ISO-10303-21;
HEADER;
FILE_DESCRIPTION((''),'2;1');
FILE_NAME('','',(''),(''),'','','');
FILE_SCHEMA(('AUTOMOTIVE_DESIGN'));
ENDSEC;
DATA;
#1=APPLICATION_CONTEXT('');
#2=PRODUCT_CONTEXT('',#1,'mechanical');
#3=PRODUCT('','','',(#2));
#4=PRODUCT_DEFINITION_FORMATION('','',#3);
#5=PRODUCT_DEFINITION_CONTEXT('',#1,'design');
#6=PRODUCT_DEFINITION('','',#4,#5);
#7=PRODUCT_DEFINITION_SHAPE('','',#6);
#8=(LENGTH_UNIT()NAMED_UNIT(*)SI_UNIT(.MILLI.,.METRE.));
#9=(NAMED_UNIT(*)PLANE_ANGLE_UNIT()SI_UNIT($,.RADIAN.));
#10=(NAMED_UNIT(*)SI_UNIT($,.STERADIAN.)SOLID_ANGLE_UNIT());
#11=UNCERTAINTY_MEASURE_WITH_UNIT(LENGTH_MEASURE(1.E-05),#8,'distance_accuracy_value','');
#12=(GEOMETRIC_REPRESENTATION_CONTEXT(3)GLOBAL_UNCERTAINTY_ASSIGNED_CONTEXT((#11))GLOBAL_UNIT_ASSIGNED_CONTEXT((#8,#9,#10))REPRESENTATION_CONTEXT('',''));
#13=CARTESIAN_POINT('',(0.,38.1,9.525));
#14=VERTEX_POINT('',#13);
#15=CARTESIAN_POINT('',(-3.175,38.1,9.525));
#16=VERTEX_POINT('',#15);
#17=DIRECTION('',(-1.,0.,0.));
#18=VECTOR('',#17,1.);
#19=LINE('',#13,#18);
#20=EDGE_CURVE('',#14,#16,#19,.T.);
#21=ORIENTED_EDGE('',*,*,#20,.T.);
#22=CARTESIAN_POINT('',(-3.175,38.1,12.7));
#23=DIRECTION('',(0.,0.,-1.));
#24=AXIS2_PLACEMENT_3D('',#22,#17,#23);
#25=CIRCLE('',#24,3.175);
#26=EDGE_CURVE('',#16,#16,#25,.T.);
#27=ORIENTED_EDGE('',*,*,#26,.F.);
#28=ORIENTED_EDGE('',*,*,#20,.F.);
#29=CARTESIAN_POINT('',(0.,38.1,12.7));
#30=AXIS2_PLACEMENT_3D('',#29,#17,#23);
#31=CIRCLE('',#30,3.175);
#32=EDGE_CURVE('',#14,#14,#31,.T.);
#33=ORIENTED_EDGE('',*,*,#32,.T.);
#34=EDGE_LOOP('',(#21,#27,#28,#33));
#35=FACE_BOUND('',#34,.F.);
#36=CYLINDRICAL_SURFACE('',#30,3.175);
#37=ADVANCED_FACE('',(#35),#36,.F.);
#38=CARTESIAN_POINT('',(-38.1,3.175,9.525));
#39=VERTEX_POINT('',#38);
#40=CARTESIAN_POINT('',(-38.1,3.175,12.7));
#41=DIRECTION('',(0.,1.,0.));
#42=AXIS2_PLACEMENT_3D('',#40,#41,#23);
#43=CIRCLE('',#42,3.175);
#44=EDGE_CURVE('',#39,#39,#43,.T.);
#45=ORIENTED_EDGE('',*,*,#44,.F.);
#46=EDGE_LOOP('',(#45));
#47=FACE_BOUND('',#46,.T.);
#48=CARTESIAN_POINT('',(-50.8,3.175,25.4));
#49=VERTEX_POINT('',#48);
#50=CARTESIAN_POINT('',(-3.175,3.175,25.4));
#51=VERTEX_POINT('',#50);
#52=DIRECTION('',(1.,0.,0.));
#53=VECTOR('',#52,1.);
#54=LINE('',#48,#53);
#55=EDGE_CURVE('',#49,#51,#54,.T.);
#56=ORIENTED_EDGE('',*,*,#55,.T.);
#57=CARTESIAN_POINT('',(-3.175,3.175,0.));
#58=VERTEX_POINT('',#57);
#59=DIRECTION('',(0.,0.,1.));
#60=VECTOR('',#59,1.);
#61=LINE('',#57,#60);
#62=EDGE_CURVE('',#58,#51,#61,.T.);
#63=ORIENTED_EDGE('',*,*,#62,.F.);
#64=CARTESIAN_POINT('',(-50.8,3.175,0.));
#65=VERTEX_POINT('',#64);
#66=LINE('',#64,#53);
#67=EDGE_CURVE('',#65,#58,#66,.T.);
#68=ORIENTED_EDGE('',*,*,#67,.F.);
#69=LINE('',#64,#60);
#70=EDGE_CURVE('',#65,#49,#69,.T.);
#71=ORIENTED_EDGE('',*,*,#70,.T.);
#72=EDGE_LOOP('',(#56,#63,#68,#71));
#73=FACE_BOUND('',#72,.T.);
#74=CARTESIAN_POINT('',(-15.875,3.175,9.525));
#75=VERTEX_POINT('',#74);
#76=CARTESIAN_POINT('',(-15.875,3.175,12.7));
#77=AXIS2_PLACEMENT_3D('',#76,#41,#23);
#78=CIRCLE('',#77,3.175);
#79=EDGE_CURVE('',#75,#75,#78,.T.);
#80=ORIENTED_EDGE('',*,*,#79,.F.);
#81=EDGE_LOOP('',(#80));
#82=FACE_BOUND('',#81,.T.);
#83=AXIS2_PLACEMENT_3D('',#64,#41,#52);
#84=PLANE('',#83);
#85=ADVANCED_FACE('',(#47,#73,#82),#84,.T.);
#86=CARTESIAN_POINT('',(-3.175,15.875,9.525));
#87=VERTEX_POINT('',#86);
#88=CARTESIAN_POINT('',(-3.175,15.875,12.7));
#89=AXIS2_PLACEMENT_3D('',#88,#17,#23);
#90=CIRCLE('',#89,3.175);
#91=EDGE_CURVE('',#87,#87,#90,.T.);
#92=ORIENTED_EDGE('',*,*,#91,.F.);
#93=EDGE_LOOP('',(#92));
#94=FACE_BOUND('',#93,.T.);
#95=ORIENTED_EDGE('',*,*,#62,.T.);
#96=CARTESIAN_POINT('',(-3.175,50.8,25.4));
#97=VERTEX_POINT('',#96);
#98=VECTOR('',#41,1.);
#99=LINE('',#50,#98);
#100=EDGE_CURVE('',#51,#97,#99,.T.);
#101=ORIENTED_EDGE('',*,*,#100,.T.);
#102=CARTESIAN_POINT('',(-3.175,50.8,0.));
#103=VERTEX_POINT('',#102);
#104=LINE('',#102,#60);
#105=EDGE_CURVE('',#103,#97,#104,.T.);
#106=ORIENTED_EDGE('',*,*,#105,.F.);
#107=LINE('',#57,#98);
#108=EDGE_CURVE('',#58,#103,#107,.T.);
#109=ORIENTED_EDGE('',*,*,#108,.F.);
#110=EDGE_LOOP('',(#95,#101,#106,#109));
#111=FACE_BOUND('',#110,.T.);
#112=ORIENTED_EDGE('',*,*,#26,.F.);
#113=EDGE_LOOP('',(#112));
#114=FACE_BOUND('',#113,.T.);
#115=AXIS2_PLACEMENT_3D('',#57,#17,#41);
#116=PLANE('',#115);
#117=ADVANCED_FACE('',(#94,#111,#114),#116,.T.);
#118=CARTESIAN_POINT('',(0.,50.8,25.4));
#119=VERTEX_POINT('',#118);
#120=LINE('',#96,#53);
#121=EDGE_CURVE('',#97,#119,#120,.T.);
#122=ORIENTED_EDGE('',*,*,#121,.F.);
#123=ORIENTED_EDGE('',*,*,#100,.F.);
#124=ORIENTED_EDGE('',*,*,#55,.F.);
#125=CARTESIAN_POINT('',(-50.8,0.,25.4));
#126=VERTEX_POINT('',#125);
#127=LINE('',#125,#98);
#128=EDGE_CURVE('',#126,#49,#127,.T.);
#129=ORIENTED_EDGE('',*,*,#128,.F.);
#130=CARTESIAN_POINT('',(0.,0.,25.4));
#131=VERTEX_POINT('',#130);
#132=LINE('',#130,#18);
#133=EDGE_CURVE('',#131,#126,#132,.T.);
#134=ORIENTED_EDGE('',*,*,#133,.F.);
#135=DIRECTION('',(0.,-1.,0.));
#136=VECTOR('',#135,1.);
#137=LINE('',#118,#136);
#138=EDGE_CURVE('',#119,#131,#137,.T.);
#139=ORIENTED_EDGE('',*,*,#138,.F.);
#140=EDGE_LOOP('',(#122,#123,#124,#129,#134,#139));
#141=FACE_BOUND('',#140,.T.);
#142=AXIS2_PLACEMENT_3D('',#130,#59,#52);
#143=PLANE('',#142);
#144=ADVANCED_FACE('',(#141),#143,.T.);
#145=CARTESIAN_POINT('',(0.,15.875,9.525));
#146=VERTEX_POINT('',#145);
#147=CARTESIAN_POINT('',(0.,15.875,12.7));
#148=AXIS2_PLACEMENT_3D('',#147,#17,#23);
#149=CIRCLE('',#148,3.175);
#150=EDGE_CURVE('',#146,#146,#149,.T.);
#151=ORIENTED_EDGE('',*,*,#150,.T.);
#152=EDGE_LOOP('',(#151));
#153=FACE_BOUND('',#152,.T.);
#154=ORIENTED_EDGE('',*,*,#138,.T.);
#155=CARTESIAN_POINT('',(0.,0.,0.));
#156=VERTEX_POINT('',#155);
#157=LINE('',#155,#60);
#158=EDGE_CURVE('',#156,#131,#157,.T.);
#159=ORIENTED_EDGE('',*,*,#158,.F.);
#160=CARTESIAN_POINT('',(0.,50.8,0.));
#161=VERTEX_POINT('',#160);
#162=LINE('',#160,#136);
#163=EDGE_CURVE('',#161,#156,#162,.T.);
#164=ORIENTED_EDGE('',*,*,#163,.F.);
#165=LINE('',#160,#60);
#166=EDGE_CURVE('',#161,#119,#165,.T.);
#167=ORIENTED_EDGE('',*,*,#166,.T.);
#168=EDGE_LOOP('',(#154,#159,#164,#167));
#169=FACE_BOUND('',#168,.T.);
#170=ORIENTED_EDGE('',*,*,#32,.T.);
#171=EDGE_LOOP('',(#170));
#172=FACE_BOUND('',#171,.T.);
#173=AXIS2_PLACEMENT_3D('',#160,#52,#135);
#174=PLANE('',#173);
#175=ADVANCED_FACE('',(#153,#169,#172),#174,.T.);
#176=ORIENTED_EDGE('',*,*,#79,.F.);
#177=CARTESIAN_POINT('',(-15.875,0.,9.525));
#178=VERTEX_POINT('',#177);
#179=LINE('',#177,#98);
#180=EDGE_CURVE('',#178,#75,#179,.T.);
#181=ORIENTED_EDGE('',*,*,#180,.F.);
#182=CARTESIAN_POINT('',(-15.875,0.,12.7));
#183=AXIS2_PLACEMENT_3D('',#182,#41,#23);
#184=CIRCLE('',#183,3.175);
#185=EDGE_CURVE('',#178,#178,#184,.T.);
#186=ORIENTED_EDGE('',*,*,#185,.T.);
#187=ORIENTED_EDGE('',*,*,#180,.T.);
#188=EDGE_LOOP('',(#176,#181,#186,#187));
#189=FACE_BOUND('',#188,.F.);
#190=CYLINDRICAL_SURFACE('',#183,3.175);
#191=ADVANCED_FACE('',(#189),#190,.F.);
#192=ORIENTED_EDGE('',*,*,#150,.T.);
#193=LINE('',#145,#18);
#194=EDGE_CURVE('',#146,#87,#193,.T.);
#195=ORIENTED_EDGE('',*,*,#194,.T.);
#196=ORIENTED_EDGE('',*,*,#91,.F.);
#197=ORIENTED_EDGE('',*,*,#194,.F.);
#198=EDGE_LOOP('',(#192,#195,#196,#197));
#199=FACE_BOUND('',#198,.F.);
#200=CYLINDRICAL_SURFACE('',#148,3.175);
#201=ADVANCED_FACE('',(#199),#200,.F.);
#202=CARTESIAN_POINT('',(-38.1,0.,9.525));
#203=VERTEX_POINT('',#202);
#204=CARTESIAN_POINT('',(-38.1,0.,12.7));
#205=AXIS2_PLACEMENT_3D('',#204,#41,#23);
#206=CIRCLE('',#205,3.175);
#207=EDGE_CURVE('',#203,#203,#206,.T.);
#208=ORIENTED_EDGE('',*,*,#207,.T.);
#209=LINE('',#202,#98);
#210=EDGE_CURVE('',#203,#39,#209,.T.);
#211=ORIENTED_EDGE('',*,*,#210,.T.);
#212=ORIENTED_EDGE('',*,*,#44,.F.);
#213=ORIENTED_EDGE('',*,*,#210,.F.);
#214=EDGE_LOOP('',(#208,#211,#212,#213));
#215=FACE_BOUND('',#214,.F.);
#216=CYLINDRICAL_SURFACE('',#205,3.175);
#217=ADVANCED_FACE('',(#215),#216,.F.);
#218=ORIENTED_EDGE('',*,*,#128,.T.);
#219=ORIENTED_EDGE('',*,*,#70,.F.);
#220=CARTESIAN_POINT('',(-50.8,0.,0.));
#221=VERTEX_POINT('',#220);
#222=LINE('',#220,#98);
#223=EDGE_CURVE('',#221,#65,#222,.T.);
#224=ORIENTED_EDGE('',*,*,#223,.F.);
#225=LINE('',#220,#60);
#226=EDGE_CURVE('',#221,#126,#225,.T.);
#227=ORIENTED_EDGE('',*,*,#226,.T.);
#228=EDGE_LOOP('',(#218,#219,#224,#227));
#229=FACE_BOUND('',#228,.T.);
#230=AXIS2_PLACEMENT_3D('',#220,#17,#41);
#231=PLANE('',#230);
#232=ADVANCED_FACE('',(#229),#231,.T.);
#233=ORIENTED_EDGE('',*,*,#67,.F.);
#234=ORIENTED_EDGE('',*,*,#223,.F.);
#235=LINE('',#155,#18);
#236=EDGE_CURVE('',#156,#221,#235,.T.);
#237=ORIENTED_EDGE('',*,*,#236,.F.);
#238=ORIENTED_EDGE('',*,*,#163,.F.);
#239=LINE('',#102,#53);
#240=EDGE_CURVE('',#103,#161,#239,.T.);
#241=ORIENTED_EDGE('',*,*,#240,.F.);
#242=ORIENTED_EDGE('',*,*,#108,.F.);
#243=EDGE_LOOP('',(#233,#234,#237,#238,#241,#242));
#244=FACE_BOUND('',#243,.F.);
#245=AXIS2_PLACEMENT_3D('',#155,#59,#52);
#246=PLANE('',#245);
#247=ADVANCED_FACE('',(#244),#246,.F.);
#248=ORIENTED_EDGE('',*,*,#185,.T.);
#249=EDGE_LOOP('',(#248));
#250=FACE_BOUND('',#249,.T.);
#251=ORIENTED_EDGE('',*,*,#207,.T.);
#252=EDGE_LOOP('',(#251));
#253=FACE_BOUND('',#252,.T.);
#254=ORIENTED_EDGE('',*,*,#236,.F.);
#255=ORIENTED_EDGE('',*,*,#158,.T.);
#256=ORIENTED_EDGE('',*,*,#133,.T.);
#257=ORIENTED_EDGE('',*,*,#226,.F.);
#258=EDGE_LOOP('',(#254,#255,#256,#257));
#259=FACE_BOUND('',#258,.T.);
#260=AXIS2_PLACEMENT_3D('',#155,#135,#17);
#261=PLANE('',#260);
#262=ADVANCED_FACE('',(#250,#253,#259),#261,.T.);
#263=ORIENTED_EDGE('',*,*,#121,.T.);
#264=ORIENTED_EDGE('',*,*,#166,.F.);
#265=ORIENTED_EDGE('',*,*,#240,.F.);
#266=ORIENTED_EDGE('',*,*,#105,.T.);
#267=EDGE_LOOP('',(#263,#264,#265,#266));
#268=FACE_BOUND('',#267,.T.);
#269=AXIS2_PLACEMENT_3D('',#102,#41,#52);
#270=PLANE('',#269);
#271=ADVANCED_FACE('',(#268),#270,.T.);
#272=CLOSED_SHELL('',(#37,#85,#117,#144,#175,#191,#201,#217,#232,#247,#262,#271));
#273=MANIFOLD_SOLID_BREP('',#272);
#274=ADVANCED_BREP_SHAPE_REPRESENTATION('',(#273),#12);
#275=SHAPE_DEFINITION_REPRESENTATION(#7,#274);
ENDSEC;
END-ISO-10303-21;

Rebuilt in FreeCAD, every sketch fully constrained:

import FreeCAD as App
import Part
import Sketcher
from FreeCAD import Vector
Q = App.Units.Quantity


def add_polygon(sketch, points):
    """Adds a closed chain of lines whose ends are joined by coincident constraints."""
    first, n = sketch.GeometryCount, len(points)
    for a, b in zip(points, points[1:] + points[:1]):
        sketch.addGeometry(Part.LineSegment(App.Vector(*a, 0), App.Vector(*b, 0)), False)
    for i in range(n):
        sketch.addConstraint(Sketcher.Constraint("Coincident", first + i, 2, first + (i + 1) % n, 1))

doc = App.newDocument("Part")
body = doc.addObject("PartDesign::Body", "Body")

sketch1 = body.newObject("Sketcher::SketchObject", "Sketch")
sketch1.AttachmentSupport = (doc.getObject("XY_Plane"), [""])
sketch1.MapMode = "FlatFace"
add_polygon(sketch1, [(-50.8, 0), (0, 0), (0, 50.8), (-3.2, 50.8), (-3.2, 3.2), (-50.8, 3.2)])
sketch1.addConstraint(Sketcher.Constraint("Horizontal", 0))
sketch1.addConstraint(Sketcher.Constraint("Vertical", 1))
sketch1.addConstraint(Sketcher.Constraint("Horizontal", 2))
sketch1.addConstraint(Sketcher.Constraint("Vertical", 3))
sketch1.addConstraint(Sketcher.Constraint("Horizontal", 4))
sketch1.addConstraint(Sketcher.Constraint("Vertical", 5))
sketch1.addConstraint(Sketcher.Constraint("Coincident", 0, 2, -1, 1))
sketch1.addConstraint(Sketcher.Constraint("Equal", 0, 1))
sketch1.addConstraint(Sketcher.Constraint("Equal", 4, 3))
sketch1.addConstraint(Sketcher.Constraint("DistanceX", 0, 1, 0, 2, Q("2 in")))
sketch1.addConstraint(Sketcher.Constraint("DistanceX", 2, 2, 2, 1, Q("0.125 in")))
pad1 = body.newObject("PartDesign::Pad", "Pad")
pad1.Profile = sketch1
pad1.Length = Q("1 in")

sketch2 = body.newObject("Sketcher::SketchObject", "Sketch001")
sketch2.AttachmentSupport = (doc.getObject("XZ_Plane"), [""])
sketch2.MapMode = "FlatFace"
sketch2.addGeometry(Part.Circle(Vector(-38.1, 12.7, 0), Vector(0, 0, 1), 3.2), False)
sketch2.addGeometry(Part.Circle(Vector(-15.9, 12.7, 0), Vector(0, 0, 1), 3.2), False)
sketch2.addConstraint(Sketcher.Constraint("Equal", 0, 1))
sketch2.addConstraint(Sketcher.Constraint("Horizontal", 0, 3, 1, 3))
sketch2.addConstraint(Sketcher.Constraint("Diameter", 0, Q("0.25 in")))
sketch2.addConstraint(Sketcher.Constraint("DistanceX", 0, 3, -1, 1, Q("1.5 in")))
sketch2.addConstraint(Sketcher.Constraint("DistanceY", -1, 1, 0, 3, Q("0.5 in")))
sketch2.addConstraint(Sketcher.Constraint("DistanceX", 1, 3, -1, 1, Q("0.625 in")))
doc.recompute()
hole = body.newObject("PartDesign::Hole", "Hole")
hole.Profile = sketch2
hole.ThreadType = "None"
hole.Diameter = Q("0.25 in")
hole.DepthType = "ThroughAll"

sketch3 = body.newObject("Sketcher::SketchObject", "Sketch002")
sketch3.AttachmentSupport = (doc.getObject("YZ_Plane"), [""])
sketch3.MapMode = "FlatFace"
sketch3.addGeometry(Part.Circle(Vector(15.9, 12.7, 0), Vector(0, 0, 1), 3.2), False)
sketch3.addGeometry(Part.Circle(Vector(38.1, 12.7, 0), Vector(0, 0, 1), 3.2), False)
sketch3.addConstraint(Sketcher.Constraint("Equal", 0, 1))
sketch3.addConstraint(Sketcher.Constraint("Horizontal", 0, 3, 1, 3))
sketch3.addConstraint(Sketcher.Constraint("Diameter", 0, Q("0.25 in")))
sketch3.addConstraint(Sketcher.Constraint("DistanceY", -1, 1, 0, 3, Q("0.5 in")))
sketch3.addConstraint(Sketcher.Constraint("DistanceX", -1, 1, 1, 3, Q("1.5 in")))
sketch3.addConstraint(Sketcher.Constraint("DistanceX", -1, 1, 0, 3, Q("0.625 in")))
doc.recompute()
hole2 = body.newObject("PartDesign::Hole", "Hole001")
hole2.Profile = sketch3
hole2.ThreadType = "None"
hole2.Diameter = Q("0.25 in")
hole2.DepthType = "ThroughAll"

doc.recompute()
